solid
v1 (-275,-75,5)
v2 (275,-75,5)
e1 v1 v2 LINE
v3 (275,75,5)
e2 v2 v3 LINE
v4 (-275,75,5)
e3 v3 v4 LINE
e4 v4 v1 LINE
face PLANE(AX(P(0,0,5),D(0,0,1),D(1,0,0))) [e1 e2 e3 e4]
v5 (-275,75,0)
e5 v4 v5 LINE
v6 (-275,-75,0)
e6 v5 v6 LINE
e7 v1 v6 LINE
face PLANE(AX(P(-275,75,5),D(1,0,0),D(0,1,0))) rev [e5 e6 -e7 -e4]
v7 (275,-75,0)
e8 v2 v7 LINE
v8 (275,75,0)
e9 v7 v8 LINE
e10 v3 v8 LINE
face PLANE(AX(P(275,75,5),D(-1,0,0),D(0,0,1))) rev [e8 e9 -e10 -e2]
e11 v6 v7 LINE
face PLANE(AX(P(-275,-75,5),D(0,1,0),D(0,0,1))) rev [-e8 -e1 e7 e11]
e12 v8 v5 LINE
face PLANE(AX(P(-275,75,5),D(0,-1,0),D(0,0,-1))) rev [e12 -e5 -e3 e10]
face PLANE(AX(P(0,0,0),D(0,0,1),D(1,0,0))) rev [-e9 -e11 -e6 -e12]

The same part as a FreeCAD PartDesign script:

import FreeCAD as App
import Part
import Sketcher
Q = App.Units.Quantity

doc = App.newDocument("Part")
params = doc.addObject("Spreadsheet::Sheet", "Params")
for row, (alias, value) in enumerate([
    ("sketch1_width", "550 mm"),
    ("sketch1_height", "150 mm"),
    ("pad1_length", "5 mm"),
], start=1):
    params.set(f"A{row}", alias)
    params.set(f"B{row}", "=" + value)
    params.setAlias(f"B{row}", alias)

body = doc.addObject("PartDesign::Body", "Body")

# Sketch on XY plane
sketch1 = body.newObject("Sketcher::SketchObject", "Sketch")
sketch1.AttachmentSupport = (doc.getObject("XY_Plane"), [""])
sketch1.MapMode = "FlatFace"
sketch1.addGeometry([
    Part.LineSegment(App.Vector(-275, 75, 0), App.Vector(-275, -75, 0)),
    Part.LineSegment(App.Vector(-275, -75, 0), App.Vector(275, -75, 0)),
    Part.LineSegment(App.Vector(275, -75, 0), App.Vector(275, 75, 0)),
    Part.LineSegment(App.Vector(275, 75, 0), App.Vector(-275, 75, 0)),
], False)
sketch1.addConstraint([
    Sketcher.Constraint("Coincident", 0, 2, 1, 1),
    Sketcher.Constraint("Coincident", 1, 2, 2, 1),
    Sketcher.Constraint("Coincident", 2, 2, 3, 1),
    Sketcher.Constraint("Coincident", 3, 2, 0, 1),
    Sketcher.Constraint("Vertical", 0),
    Sketcher.Constraint("Horizontal", 1),
    Sketcher.Constraint("Vertical", 2),
    Sketcher.Constraint("Horizontal", 3),
    Sketcher.Constraint("Symmetric", 0, 2, 2, 2, -1, 1),
    Sketcher.Constraint("DistanceX", 1, 1, 1, 2, Q("550 mm")),
    Sketcher.Constraint("DistanceY", 0, 2, 0, 1, Q("150 mm")),
])
sketch1.setExpression("Constraints[9]", "Params.sketch1_width")
sketch1.setExpression("Constraints[10]", "Params.sketch1_height")
pad1 = body.newObject("PartDesign::Pad", "Pad")
pad1.Profile = sketch1
pad1.setExpression("Length", "Params.pad1_length")

doc.recompute()
